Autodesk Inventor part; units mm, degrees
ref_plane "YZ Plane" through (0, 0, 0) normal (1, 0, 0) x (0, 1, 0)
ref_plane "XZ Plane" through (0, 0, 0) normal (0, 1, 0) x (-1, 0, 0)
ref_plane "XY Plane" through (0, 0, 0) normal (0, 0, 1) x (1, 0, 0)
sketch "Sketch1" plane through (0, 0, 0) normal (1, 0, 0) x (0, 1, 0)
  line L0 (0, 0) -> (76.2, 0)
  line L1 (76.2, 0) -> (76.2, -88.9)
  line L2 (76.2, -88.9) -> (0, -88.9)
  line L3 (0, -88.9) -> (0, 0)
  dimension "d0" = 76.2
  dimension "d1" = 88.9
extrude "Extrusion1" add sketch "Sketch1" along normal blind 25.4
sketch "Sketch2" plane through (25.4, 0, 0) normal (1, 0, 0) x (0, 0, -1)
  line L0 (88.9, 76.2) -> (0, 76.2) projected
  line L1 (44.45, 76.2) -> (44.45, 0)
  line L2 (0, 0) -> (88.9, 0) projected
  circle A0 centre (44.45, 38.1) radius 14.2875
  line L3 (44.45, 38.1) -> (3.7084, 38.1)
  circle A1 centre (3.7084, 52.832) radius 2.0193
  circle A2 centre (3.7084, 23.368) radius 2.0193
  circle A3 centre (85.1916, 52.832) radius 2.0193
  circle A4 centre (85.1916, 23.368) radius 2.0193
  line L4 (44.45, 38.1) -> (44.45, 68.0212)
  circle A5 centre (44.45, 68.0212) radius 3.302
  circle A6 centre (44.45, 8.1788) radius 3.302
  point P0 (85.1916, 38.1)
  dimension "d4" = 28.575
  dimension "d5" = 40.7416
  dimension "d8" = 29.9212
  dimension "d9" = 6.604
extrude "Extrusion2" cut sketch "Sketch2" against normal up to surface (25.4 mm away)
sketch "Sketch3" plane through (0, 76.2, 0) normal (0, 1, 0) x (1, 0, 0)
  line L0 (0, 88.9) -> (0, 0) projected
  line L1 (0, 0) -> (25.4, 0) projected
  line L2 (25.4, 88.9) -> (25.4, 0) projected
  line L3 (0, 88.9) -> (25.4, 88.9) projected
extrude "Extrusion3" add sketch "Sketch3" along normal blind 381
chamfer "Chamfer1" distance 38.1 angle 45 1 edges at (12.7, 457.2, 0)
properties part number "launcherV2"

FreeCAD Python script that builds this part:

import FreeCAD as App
import Part
import Sketcher
from FreeCAD import Vector
Q = App.Units.Quantity


def edges_at(feature, points):
    """Names of the edges that pass closest to the given points."""
    edges = feature.Shape.Edges
    near = lambda p: min(range(len(edges)), key=lambda i: edges[i].distToShape(Part.Vertex(*p))[0])
    return sorted({f"Edge{near(p) + 1}" for p in points})


def add_polygon(sketch, points):
    """Adds a closed chain of lines whose ends are joined by coincident constraints."""
    first, n = sketch.GeometryCount, len(points)
    for a, b in zip(points, points[1:] + points[:1]):
        sketch.addGeometry(Part.LineSegment(App.Vector(*a, 0), App.Vector(*b, 0)), False)
    for i in range(n):
        sketch.addConstraint(Sketcher.Constraint("Coincident", first + i, 2, first + (i + 1) % n, 1))

doc = App.newDocument("Part")
body = doc.addObject("PartDesign::Body", "Body")

# Sketch on YZ plane
sketch1 = body.newObject("Sketcher::SketchObject", "Sketch")
sketch1.AttachmentSupport = (doc.getObject("YZ_Plane"), [""])
sketch1.MapMode = "FlatFace"
add_polygon(sketch1, [(76, 0), (0, 0), (0, -89), (76, -89)])  # lines 0-3
sketch1.addConstraint([
    Sketcher.Constraint("Horizontal", 0),
    Sketcher.Constraint("Vertical", 1),
    Sketcher.Constraint("Horizontal", 2),
    Sketcher.Constraint("Vertical", 3),
    Sketcher.Constraint("Coincident", 0, 2, -1, 1),
    Sketcher.Constraint("DistanceX", 0, 2, 0, 1, Q("3 in")),
    Sketcher.Constraint("DistanceY", 1, 2, 1, 1, Q("3.5 in")),
])
pad1 = body.newObject("PartDesign::Pad", "Pad")
pad1.Profile = sketch1
pad1.Length = Q("1 in")

# Sketch on YZ plane
sketch2 = body.newObject("Sketcher::SketchObject", "Sketch001")
sketch2.AttachmentSupport = (doc.getObject("YZ_Plane"), [""])
sketch2.MapMode = "FlatFace"
sketch2.AttachmentOffset = App.Placement(Vector(0, 0, 1 * 25.4), App.Rotation())
sketch2.addGeometry([
    Part.Circle(Vector(68, -44.5, 0), Vector(0, 0, 1), 3.3),  # 0
    Part.Circle(Vector(8.2, -44.5, 0), Vector(0, 0, 1), 3.3),  # 1
    Part.Circle(Vector(38.1, -44.5, 0), Vector(0, 0, 1), 14.3),  # 2
    Part.Circle(Vector(52.8, -3.7, 0), Vector(0, 0, 1), 2),  # 3
    Part.Circle(Vector(23.4, -3.7, 0), Vector(0, 0, 1), 2),  # 4
    Part.Circle(Vector(52.8, -85.2, 0), Vector(0, 0, 1), 2),  # 5
    Part.Circle(Vector(23.4, -85.2, 0), Vector(0, 0, 1), 2),  # 6
], False)
sketch2.addConstraint([
    Sketcher.Constraint("Equal", 0, 1),
    Sketcher.Constraint("Equal", 3, 4),
    Sketcher.Constraint("Equal", 4, 5),
    Sketcher.Constraint("Equal", 5, 6),
    Sketcher.Constraint("Horizontal", 0, 3, 1, 3),
    Sketcher.Constraint("Horizontal", 1, 3, 2, 3),
    Sketcher.Constraint("Horizontal", 3, 3, 4, 3),
    Sketcher.Constraint("Horizontal", 5, 3, 6, 3),
    Sketcher.Constraint("Vertical", 3, 3, 5, 3),
    Sketcher.Constraint("Vertical", 4, 3, 6, 3),
    Sketcher.Constraint("Diameter", 0, Q("0.26 in")),
    Sketcher.Constraint("Diameter", 2, Q("1.125 in")),
    Sketcher.Constraint("Diameter", 3, Q("0.159 in")),
    Sketcher.Constraint("DistanceX", 2, 3, 0, 3, Q("1.178 in")),
    Sketcher.Constraint("DistanceX", 1, 3, 2, 3, Q("1.178 in")),
    Sketcher.Constraint("DistanceY", 2, 3, 3, 3, Q("1.604 in")),
    Sketcher.Constraint("DistanceY", 5, 3, 2, 3, Q("1.604 in")),
    Sketcher.Constraint("DistanceX", -1, 1, 2, 3, Q("1.5 in")),
    Sketcher.Constraint("DistanceY", 0, 3, -1, 1, Q("1.75 in")),
    Sketcher.Constraint("DistanceX", -1, 1, 3, 3, Q("2.08 in")),
    Sketcher.Constraint("DistanceX", -1, 1, 4, 3, Q("0.92 in")),
])
pocket1 = body.newObject("PartDesign::Pocket", "Pocket")
pocket1.Profile = sketch2
pocket1.Length = Q("1 in")

# Sketch on XZ plane
sketch3 = body.newObject("Sketcher::SketchObject", "Sketch002")
sketch3.AttachmentSupport = (doc.getObject("XZ_Plane"), [""])
sketch3.MapMode = "FlatFace"
sketch3.AttachmentOffset = App.Placement(Vector(0, 0, -3 * 25.4), App.Rotation())
add_polygon(sketch3, [(25, -89), (0, -89), (0, 0), (25, 0)])  # lines 0-3
sketch3.addConstraint([
    Sketcher.Constraint("Horizontal", 0),
    Sketcher.Constraint("Vertical", 1),
    Sketcher.Constraint("Horizontal", 2),
    Sketcher.Constraint("Vertical", 3),
    Sketcher.Constraint("Coincident", 1, 2, -1, 1),
    Sketcher.Constraint("DistanceX", 0, 2, 0, 1, Q("1 in")),
    Sketcher.Constraint("DistanceY", 1, 1, 1, 2, Q("3.5 in")),
])
pad2 = body.newObject("PartDesign::Pad", "Pad001")
pad2.Profile = sketch3
pad2.Length = Q("15 in")
pad2.Reversed = True
doc.recompute()

chamfer = body.newObject("PartDesign::Chamfer", "Chamfer")
chamfer.Base = (pad2, edges_at(pad2, [(12.7, 457.2, 0)]))
chamfer.Size = Q("1.5 in")

doc.recompute()
